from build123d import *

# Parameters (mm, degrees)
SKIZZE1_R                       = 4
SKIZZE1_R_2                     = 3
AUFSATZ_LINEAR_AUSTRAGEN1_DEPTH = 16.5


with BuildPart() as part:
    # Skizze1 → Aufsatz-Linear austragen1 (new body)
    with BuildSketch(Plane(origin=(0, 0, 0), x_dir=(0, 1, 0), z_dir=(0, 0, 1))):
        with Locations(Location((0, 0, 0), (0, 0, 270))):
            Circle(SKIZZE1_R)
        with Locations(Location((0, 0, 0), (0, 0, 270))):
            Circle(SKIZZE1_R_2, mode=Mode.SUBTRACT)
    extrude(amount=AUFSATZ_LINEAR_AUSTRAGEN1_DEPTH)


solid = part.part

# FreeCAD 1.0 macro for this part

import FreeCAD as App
import Part
import Sketcher
from FreeCAD import Vector
Q = App.Units.Quantity

doc = App.newDocument("Part")
body = doc.addObject("PartDesign::Body", "Body")

sketch1 = doc.addObject("Sketcher::SketchObject", "Sketch")
body.addObject(sketch1)
sketch1.AttachmentSupport = (doc.XY_Plane, [""])
sketch1.MapMode = "FlatFace"
sketch1.addGeometry([
    Part.Circle(Vector(0, 0, 0), Vector(0, 0, 1), 4),
    Part.Circle(Vector(0, 0, 0), Vector(0, 0, 1), 3),
], False)
sketch1.addConstraint([
    Sketcher.Constraint("Coincident", 0, 3, -1, 1),
    Sketcher.Constraint("Coincident", 1, 3, -1, 1),
    Sketcher.Constraint("Diameter", 0, Q("8 mm")),
    Sketcher.Constraint("Diameter", 1, Q("6 mm")),
])
pad1 = doc.addObject("PartDesign::Pad", "Pad")
body.addObject(pad1)
pad1.Profile = sketch1
pad1.Length = 16.5

doc.recompute()
